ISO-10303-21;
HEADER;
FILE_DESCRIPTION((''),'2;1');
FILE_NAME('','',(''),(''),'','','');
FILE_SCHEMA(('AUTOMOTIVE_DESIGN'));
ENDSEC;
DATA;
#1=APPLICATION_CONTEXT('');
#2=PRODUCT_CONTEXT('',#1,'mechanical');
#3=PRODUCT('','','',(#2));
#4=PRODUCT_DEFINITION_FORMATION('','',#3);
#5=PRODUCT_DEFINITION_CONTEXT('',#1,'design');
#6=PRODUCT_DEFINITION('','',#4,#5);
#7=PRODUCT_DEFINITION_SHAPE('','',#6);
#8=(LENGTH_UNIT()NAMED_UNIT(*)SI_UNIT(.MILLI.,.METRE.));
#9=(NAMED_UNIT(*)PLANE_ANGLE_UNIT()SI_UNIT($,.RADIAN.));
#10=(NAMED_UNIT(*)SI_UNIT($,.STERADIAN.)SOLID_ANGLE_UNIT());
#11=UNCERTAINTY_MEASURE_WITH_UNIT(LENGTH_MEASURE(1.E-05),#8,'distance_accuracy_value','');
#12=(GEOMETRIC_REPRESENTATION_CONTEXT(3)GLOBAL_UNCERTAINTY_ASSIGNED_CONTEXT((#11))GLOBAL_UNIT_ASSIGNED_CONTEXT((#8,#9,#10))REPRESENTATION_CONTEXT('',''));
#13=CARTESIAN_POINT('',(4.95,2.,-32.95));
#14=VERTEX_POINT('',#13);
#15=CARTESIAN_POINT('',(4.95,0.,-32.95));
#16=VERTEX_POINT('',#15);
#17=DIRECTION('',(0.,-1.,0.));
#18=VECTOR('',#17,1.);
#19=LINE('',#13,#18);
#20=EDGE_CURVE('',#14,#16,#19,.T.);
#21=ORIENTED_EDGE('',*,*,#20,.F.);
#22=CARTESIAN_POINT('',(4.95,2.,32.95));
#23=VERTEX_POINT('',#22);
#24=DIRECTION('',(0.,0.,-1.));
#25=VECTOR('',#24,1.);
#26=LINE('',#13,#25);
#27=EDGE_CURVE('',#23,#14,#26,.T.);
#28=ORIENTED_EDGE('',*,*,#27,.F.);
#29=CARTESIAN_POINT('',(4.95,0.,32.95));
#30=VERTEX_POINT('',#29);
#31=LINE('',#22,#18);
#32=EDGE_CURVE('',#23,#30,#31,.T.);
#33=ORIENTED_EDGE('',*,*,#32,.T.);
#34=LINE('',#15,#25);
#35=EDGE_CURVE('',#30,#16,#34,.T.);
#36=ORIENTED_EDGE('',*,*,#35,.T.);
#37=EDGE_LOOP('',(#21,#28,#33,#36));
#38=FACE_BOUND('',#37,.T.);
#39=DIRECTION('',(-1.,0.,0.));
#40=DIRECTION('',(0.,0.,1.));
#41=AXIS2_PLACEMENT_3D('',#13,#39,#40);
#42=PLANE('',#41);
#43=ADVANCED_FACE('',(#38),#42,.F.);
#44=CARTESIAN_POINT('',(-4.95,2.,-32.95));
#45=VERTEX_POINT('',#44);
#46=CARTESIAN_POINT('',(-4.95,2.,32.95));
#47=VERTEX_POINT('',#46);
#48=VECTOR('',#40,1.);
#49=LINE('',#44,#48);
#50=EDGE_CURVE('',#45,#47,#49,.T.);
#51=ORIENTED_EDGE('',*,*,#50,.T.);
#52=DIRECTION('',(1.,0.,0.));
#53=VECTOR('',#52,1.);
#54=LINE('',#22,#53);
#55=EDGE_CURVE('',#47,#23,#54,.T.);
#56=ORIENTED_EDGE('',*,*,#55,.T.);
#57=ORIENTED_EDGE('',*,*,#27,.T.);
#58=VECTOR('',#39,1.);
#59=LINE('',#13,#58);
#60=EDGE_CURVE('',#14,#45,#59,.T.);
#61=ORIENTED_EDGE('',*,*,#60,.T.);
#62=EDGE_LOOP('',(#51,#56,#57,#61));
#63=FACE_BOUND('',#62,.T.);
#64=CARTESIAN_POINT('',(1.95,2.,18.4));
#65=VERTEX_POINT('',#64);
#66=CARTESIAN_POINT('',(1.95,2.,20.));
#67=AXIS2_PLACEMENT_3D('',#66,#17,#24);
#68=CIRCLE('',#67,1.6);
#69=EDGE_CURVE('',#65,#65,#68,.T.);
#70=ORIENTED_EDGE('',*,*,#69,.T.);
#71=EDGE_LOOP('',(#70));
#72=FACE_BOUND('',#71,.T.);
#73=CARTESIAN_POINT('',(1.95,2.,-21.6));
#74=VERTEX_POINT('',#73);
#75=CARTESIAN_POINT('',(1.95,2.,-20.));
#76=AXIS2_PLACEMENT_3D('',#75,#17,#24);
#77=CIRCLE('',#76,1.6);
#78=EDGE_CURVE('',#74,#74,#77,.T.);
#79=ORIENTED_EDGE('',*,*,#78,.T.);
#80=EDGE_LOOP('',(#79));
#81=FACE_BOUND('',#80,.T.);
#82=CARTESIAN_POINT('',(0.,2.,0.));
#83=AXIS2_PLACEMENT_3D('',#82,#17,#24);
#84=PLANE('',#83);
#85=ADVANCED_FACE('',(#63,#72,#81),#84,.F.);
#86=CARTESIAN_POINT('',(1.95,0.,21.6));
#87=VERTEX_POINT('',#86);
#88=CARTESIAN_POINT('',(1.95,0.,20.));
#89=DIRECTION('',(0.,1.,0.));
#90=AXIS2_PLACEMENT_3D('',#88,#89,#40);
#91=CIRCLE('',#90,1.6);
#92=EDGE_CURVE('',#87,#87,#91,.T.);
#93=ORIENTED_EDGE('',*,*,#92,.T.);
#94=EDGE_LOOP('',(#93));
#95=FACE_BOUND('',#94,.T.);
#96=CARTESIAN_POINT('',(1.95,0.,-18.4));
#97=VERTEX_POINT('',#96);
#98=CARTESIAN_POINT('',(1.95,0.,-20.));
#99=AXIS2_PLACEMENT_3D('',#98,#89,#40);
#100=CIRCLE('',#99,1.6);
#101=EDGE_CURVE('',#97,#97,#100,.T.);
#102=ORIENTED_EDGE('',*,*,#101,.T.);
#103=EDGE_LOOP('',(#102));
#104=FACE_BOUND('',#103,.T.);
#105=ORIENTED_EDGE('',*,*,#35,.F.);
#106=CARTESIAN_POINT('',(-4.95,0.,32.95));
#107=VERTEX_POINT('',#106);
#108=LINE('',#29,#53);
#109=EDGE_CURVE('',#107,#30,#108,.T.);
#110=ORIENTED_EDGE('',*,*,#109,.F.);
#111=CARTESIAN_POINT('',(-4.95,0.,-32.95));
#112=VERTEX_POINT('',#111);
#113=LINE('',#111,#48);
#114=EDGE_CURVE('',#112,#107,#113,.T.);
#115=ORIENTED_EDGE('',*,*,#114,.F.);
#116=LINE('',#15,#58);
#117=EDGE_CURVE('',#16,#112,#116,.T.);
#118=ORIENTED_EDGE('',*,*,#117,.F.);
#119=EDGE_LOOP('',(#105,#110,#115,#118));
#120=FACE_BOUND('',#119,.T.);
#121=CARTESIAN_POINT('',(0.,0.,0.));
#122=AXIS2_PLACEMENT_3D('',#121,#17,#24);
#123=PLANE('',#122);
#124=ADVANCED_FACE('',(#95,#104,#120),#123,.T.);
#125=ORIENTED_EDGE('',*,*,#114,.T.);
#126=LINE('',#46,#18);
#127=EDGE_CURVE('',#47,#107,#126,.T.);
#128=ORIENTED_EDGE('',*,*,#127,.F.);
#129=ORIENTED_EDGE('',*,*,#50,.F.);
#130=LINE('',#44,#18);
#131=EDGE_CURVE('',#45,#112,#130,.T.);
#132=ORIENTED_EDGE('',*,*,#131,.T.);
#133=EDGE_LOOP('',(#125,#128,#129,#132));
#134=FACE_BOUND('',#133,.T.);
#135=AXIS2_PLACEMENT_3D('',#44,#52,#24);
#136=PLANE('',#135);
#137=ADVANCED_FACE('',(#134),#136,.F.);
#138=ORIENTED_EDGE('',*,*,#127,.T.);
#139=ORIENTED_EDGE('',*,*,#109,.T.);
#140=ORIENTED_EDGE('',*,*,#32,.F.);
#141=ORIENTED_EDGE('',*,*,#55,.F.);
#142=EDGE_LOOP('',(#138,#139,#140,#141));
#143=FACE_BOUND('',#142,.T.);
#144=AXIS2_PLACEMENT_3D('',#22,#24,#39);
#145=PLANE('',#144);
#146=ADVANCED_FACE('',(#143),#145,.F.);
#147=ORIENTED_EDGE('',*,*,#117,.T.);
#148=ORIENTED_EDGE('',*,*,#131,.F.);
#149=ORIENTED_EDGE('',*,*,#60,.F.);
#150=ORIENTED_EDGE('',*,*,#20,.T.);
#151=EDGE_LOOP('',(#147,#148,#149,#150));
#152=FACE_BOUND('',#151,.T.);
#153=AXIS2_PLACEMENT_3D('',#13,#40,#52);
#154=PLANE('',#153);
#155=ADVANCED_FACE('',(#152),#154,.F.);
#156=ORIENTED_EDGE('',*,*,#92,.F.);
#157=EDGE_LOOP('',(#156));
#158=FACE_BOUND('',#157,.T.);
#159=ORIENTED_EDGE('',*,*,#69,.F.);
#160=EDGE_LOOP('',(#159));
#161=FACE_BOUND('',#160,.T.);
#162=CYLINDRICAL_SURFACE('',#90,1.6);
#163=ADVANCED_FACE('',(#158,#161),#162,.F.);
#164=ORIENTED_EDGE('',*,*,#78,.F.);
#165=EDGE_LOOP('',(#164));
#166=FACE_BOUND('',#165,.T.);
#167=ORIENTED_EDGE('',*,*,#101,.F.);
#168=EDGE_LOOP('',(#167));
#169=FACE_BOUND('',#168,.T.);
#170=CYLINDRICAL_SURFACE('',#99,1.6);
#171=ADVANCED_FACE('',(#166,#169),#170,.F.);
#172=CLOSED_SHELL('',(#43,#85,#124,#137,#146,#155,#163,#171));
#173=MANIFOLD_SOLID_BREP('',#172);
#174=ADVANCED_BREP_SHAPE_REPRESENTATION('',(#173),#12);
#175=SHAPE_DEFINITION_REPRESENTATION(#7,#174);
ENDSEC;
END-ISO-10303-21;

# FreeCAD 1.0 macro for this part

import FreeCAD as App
import Part
import Sketcher
from FreeCAD import Vector
Q = App.Units.Quantity


def add_polygon(sketch, points):
    """Adds a closed chain of lines whose ends are joined by coincident constraints."""
    first, n = sketch.GeometryCount, len(points)
    for a, b in zip(points, points[1:] + points[:1]):
        sketch.addGeometry(Part.LineSegment(App.Vector(*a, 0), App.Vector(*b, 0)), False)
    for i in range(n):
        sketch.addConstraint(Sketcher.Constraint("Coincident", first + i, 2, first + (i + 1) % n, 1))

doc = App.newDocument("Part")
body = doc.addObject("PartDesign::Body", "Body")

# Sketch on XZ plane
sketch1 = body.newObject("Sketcher::SketchObject", "Sketch")
sketch1.AttachmentSupport = (doc.getObject("XZ_Plane"), [""])
sketch1.MapMode = "FlatFace"
add_polygon(sketch1, [(-5, -33), (-5, 33), (5, 33), (5, -33)])  # lines 0-3
sketch1.addConstraint([
    Sketcher.Constraint("Vertical", 0),
    Sketcher.Constraint("Horizontal", 1),
    Sketcher.Constraint("Vertical", 2),
    Sketcher.Constraint("Horizontal", 3),
    Sketcher.Constraint("Symmetric", 0, 2, 2, 2, -1, 1),
    Sketcher.Constraint("DistanceX", 1, 1, 1, 2, Q("9.9 mm")),
    Sketcher.Constraint("DistanceY", 0, 1, 0, 2, Q("65.9 mm")),
])
pad1 = body.newObject("PartDesign::Pad", "Pad")
pad1.Profile = sketch1
pad1.Length = 2
pad1.Reversed = True

# Sketch on XZ plane
sketch2 = body.newObject("Sketcher::SketchObject", "Sketch001")
sketch2.AttachmentSupport = (doc.getObject("XZ_Plane"), [""])
sketch2.MapMode = "FlatFace"
sketch2.AttachmentOffset = App.Placement(Vector(0, 0, -2), App.Rotation())
sketch2.addGeometry([
    Part.Circle(Vector(1.9, -20, 0), Vector(0, 0, 1), 1.6),
    Part.Circle(Vector(1.9, 20, 0), Vector(0, 0, 1), 1.6),
], False)
sketch2.addConstraint([
    Sketcher.Constraint("Equal", 0, 1),
    Sketcher.Constraint("Symmetric", 0, 3, 1, 3, -1),
    Sketcher.Constraint("Diameter", 0, Q("3.2 mm")),
    Sketcher.Constraint("DistanceY", 0, 3, -1, 1, Q("20 mm")),
    Sketcher.Constraint("DistanceX", -1, 1, 0, 3, Q("1.95 mm")),
])
pocket1 = body.newObject("PartDesign::Pocket", "Pocket")
pocket1.Profile = sketch2
pocket1.Type = "ThroughAll"
pocket1.Midplane = True

doc.recompute()
